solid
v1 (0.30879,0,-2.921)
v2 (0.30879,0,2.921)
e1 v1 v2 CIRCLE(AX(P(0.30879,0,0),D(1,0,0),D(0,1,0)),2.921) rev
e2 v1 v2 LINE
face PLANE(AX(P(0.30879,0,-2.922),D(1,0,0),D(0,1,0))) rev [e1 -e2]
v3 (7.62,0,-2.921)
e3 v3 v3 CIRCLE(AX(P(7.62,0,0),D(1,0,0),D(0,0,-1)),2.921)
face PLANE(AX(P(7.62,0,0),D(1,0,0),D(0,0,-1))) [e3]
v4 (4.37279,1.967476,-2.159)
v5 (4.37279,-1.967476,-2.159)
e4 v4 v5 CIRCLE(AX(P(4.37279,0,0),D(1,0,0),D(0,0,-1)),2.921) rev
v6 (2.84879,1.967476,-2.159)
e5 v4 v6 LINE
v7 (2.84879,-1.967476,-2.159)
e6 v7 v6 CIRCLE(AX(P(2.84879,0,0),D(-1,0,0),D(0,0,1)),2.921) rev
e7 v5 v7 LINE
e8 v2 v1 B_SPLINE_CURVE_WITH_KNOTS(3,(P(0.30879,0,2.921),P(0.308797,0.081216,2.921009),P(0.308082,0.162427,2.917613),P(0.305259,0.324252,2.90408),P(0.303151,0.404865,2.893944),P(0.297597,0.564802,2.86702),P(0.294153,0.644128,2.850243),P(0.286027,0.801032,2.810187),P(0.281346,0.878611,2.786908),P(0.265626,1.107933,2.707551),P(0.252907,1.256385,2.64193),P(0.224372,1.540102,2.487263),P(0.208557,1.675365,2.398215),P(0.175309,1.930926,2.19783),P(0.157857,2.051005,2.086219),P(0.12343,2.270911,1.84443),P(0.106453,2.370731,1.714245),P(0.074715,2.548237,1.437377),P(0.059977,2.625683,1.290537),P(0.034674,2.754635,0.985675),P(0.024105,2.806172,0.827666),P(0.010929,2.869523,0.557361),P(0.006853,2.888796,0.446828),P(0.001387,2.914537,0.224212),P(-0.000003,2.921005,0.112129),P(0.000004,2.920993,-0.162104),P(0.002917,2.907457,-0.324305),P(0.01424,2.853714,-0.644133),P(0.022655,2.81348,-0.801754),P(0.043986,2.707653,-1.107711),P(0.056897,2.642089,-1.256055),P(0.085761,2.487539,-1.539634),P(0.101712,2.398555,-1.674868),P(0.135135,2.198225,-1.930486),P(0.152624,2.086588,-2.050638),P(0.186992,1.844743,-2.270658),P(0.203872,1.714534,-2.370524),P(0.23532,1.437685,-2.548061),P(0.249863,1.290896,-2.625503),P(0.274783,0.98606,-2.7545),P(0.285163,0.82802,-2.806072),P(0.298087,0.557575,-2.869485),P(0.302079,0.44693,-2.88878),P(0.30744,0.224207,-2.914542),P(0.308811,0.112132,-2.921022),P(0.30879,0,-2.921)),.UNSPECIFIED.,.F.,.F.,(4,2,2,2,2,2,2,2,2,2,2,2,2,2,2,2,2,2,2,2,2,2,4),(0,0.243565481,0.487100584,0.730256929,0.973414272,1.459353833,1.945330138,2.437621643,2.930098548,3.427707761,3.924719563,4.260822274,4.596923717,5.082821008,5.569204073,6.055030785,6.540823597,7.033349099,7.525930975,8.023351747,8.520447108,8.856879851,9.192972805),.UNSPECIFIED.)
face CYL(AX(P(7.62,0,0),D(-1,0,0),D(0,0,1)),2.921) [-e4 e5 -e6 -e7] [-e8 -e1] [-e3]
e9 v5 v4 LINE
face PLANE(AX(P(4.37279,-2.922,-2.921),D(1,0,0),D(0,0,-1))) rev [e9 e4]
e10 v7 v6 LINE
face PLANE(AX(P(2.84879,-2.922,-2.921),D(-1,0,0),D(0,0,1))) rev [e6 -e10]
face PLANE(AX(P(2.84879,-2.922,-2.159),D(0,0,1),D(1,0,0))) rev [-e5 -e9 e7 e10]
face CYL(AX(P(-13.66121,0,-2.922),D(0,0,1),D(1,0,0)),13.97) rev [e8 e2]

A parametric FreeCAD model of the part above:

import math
import FreeCAD as App
import Part
import Sketcher

V = App.Vector
Q = App.Units.Quantity

doc = App.newDocument("Part")
body = doc.addObject("PartDesign::Body", "Body")

sketch1 = doc.addObject("Sketcher::SketchObject", "Sketch")
body.addObject(sketch1)
sketch1.AttachmentSupport = (doc.YZ_Plane, [""])
sketch1.MapMode = "FlatFace"
sketch1.addGeometry(Part.Circle(V(0, 0, 0), V(0, 0, 1), 2.9), False)
sketch1.addConstraint(Sketcher.Constraint("Coincident", 0, 3, -1, 1))
sketch1.addConstraint(Sketcher.Constraint("Diameter", 0, Q("0.23 in")))
pad1 = doc.addObject("PartDesign::Pad", "Pad")
body.addObject(pad1)
pad1.Profile = sketch1
pad1.Length = Q("0.3 in")

sketch2 = doc.addObject("Sketcher::SketchObject", "Sketch001")
body.addObject(sketch2)
sketch2.AttachmentSupport = (doc.XY_Plane, [""])
sketch2.MapMode = "FlatFace"
sketch2.addGeometry(Part.LineSegment(V(0.31, -2.92, 0), V(0.31, 0, 0)), False)
sketch2.addGeometry(Part.ArcOfCircle(Part.Circle(V(-13.66, 0, 0), V(0, 0, 1), 13.97), math.radians(0), math.radians(12.07)), False)
sketch2.addGeometry(Part.LineSegment(V(0, 2.92, 0), V(0, -2.92, 0)), False)
sketch2.addGeometry(Part.LineSegment(V(0, -2.92, 0), V(0.31, -2.92, 0)), False)
sketch2.addConstraint(Sketcher.Constraint("Tangent", 0, 2, 1, 1))
sketch2.addConstraint(Sketcher.Constraint("Coincident", 1, 2, 2, 1))
sketch2.addConstraint(Sketcher.Constraint("Coincident", 2, 2, 3, 1))
sketch2.addConstraint(Sketcher.Constraint("Coincident", 3, 2, 0, 1))
sketch2.addConstraint(Sketcher.Constraint("Vertical", 0))
sketch2.addConstraint(Sketcher.Constraint("Vertical", 2))
sketch2.addConstraint(Sketcher.Constraint("Horizontal", 3))
sketch2.addConstraint(Sketcher.Constraint("Symmetric", 1, 2, 2, 2, -1, 1))
sketch2.addConstraint(Sketcher.Constraint("PointOnObject", 1, 3, -1))
sketch2.addConstraint(Sketcher.Constraint("Radius", 1, Q("0.55 in")))
sketch2.addConstraint(Sketcher.Constraint("DistanceY", 2, 2, 2, 1, Q("0.23 in")))
pocket1 = doc.addObject("PartDesign::Pocket", "Pocket")
body.addObject(pocket1)
pocket1.Profile = sketch2
pocket1.Length = Q("0.115 in")

sketch3 = doc.addObject("Sketcher::SketchObject", "Sketch002")
body.addObject(sketch3)
sketch3.AttachmentSupport = (doc.XY_Plane, [""])
sketch3.MapMode = "FlatFace"
sketch3.addGeometry(Part.LineSegment(V(0.31, -2.92, 0), V(0.31, 0, 0)), False)
sketch3.addGeometry(Part.ArcOfCircle(Part.Circle(V(-13.66, 0, 0), V(0, 0, 1), 13.97), math.radians(0), math.radians(12.07)), False)
sketch3.addGeometry(Part.LineSegment(V(0, 2.92, 0), V(0, -2.92, 0)), False)
sketch3.addGeometry(Part.LineSegment(V(0, -2.92, 0), V(0.31, -2.92, 0)), False)
sketch3.addConstraint(Sketcher.Constraint("Tangent", 0, 2, 1, 1))
sketch3.addConstraint(Sketcher.Constraint("Coincident", 1, 2, 2, 1))
sketch3.addConstraint(Sketcher.Constraint("Coincident", 2, 2, 3, 1))
sketch3.addConstraint(Sketcher.Constraint("Coincident", 3, 2, 0, 1))
sketch3.addConstraint(Sketcher.Constraint("Vertical", 0))
sketch3.addConstraint(Sketcher.Constraint("Vertical", 2))
sketch3.addConstraint(Sketcher.Constraint("Horizontal", 3))
sketch3.addConstraint(Sketcher.Constraint("Symmetric", 1, 2, 2, 2, -1, 1))
sketch3.addConstraint(Sketcher.Constraint("PointOnObject", 1, 3, -1))
sketch3.addConstraint(Sketcher.Constraint("Radius", 1, Q("0.55 in")))
sketch3.addConstraint(Sketcher.Constraint("DistanceY", 2, 2, 2, 1, Q("0.23 in")))
pocket2 = doc.addObject("PartDesign::Pocket", "Pocket001")
body.addObject(pocket2)
pocket2.Profile = sketch3
pocket2.Length = Q("0.115 in")
pocket2.Reversed = True

sketch4 = doc.addObject("Sketcher::SketchObject", "Sketch003")
body.addObject(sketch4)
sketch4.AttachmentSupport = (doc.XZ_Plane, [""])
sketch4.MapMode = "FlatFace"
sketch4.addGeometry(Part.LineSegment(V(2.8, -2.9, 0), V(2.8, -2.2, 0)), False)
sketch4.addGeometry(Part.LineSegment(V(2.8, -2.2, 0), V(4.4, -2.2, 0)), False)
sketch4.addGeometry(Part.LineSegment(V(4.4, -2.2, 0), V(4.4, -2.9, 0)), False)
sketch4.addGeometry(Part.LineSegment(V(4.4, -2.9, 0), V(2.8, -2.9, 0)), False)
sketch4.addConstraint(Sketcher.Constraint("Coincident", 0, 2, 1, 1))
sketch4.addConstraint(Sketcher.Constraint("Coincident", 1, 2, 2, 1))
sketch4.addConstraint(Sketcher.Constraint("Coincident", 2, 2, 3, 1))
sketch4.addConstraint(Sketcher.Constraint("Coincident", 3, 2, 0, 1))
sketch4.addConstraint(Sketcher.Constraint("Vertical", 0))
sketch4.addConstraint(Sketcher.Constraint("Horizontal", 1))
sketch4.addConstraint(Sketcher.Constraint("Vertical", 2))
sketch4.addConstraint(Sketcher.Constraint("Horizontal", 3))
sketch4.addConstraint(Sketcher.Constraint("DistanceX", 1, 1, 1, 2, Q("0.06 in")))
sketch4.addConstraint(Sketcher.Constraint("DistanceY", 0, 1, 0, 2, Q("0.03 in")))
sketch4.addConstraint(Sketcher.Constraint("DistanceY", 0, 2, -1, 1, Q("0.085 in")))
sketch4.addConstraint(Sketcher.Constraint("DistanceX", -1, 1, 0, 2, 2.84879))
pocket3 = doc.addObject("PartDesign::Pocket", "Pocket002")
body.addObject(pocket3)
pocket3.Profile = sketch4
pocket3.Length = 1.967476
pocket3.Reversed = True

sketch5 = doc.addObject("Sketcher::SketchObject", "Sketch004")
body.addObject(sketch5)
sketch5.AttachmentSupport = (doc.XZ_Plane, [""])
sketch5.MapMode = "FlatFace"
sketch5.addGeometry(Part.LineSegment(V(2.8, -2.9, 0), V(2.8, -2.2, 0)), False)
sketch5.addGeometry(Part.LineSegment(V(2.8, -2.2, 0), V(4.4, -2.2, 0)), False)
sketch5.addGeometry(Part.LineSegment(V(4.4, -2.2, 0), V(4.4, -2.9, 0)), False)
sketch5.addGeometry(Part.LineSegment(V(4.4, -2.9, 0), V(2.8, -2.9, 0)), False)
sketch5.addConstraint(Sketcher.Constraint("Coincident", 0, 2, 1, 1))
sketch5.addConstraint(Sketcher.Constraint("Coincident", 1, 2, 2, 1))
sketch5.addConstraint(Sketcher.Constraint("Coincident", 2, 2, 3, 1))
sketch5.addConstraint(Sketcher.Constraint("Coincident", 3, 2, 0, 1))
sketch5.addConstraint(Sketcher.Constraint("Vertical", 0))
sketch5.addConstraint(Sketcher.Constraint("Horizontal", 1))
sketch5.addConstraint(Sketcher.Constraint("Vertical", 2))
sketch5.addConstraint(Sketcher.Constraint("Horizontal", 3))
sketch5.addConstraint(Sketcher.Constraint("DistanceX", 1, 1, 1, 2, Q("0.06 in")))
sketch5.addConstraint(Sketcher.Constraint("DistanceY", 0, 1, 0, 2, Q("0.03 in")))
sketch5.addConstraint(Sketcher.Constraint("DistanceY", 0, 2, -1, 1, Q("0.085 in")))
sketch5.addConstraint(Sketcher.Constraint("DistanceX", -1, 1, 0, 2, 2.84879))
pocket4 = doc.addObject("PartDesign::Pocket", "Pocket003")
body.addObject(pocket4)
pocket4.Profile = sketch5
pocket4.Length = 1.967476

doc.recompute()
